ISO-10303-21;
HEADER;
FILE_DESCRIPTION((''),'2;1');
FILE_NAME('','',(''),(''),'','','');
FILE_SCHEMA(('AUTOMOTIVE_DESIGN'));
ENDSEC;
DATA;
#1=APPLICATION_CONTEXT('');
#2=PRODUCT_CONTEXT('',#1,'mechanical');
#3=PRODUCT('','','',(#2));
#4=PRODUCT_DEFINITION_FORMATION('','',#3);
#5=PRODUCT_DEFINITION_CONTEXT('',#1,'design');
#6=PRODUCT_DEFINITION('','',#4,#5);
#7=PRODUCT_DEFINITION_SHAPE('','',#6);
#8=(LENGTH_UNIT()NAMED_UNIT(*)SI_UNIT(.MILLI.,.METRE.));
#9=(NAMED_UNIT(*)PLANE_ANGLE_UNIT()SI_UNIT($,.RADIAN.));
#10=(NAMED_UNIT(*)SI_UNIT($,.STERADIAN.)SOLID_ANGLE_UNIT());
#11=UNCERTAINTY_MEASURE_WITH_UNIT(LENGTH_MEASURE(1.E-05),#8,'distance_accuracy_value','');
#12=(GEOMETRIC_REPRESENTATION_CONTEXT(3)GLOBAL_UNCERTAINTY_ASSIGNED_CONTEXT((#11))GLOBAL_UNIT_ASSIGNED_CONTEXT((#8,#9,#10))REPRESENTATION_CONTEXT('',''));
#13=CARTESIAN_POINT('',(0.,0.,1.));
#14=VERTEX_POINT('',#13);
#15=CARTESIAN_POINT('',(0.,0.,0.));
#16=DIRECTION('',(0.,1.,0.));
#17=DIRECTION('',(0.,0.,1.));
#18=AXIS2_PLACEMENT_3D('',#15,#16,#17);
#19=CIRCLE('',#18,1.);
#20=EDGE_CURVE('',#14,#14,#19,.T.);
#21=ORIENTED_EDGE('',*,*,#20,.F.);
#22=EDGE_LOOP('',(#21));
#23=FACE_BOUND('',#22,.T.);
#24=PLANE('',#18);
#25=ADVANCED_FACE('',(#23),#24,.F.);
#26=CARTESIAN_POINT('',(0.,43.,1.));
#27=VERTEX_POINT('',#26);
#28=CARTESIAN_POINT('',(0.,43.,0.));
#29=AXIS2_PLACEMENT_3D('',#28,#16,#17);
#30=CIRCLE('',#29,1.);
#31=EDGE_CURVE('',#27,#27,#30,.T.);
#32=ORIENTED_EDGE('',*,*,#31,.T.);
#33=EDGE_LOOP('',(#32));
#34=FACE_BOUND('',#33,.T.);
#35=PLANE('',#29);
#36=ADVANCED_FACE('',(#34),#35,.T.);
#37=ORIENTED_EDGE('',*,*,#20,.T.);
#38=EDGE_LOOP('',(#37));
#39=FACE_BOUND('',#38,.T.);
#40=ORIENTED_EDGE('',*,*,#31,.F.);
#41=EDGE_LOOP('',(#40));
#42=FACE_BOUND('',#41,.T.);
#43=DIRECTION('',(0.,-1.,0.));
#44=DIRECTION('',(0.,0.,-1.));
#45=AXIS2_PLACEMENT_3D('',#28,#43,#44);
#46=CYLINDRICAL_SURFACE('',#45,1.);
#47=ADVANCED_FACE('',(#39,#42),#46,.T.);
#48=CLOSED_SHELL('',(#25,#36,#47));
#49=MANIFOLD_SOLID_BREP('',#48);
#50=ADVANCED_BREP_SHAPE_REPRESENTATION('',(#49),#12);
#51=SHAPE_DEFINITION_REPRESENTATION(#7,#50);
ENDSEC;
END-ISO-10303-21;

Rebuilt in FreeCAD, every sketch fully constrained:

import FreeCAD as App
import Part
import Sketcher

V = App.Vector
Q = App.Units.Quantity

doc = App.newDocument("Part")
body = doc.addObject("PartDesign::Body", "Body")

# Sketch on XZ plane
sketch1 = body.newObject("Sketcher::SketchObject", "Sketch")
sketch1.AttachmentSupport = (doc.getObject("XZ_Plane"), [""])
sketch1.MapMode = "FlatFace"
sketch1.addGeometry(Part.Circle(V(0, 0, 0), V(0, 0, 1), 1), False)
sketch1.addConstraint(Sketcher.Constraint("Coincident", 0, 3, -1, 1))
sketch1.addConstraint(Sketcher.Constraint("Diameter", 0, Q("2 mm")))
pad1 = body.newObject("PartDesign::Pad", "Pad")
pad1.Profile = sketch1
pad1.Length = 43
pad1.Reversed = True

doc.recompute()
